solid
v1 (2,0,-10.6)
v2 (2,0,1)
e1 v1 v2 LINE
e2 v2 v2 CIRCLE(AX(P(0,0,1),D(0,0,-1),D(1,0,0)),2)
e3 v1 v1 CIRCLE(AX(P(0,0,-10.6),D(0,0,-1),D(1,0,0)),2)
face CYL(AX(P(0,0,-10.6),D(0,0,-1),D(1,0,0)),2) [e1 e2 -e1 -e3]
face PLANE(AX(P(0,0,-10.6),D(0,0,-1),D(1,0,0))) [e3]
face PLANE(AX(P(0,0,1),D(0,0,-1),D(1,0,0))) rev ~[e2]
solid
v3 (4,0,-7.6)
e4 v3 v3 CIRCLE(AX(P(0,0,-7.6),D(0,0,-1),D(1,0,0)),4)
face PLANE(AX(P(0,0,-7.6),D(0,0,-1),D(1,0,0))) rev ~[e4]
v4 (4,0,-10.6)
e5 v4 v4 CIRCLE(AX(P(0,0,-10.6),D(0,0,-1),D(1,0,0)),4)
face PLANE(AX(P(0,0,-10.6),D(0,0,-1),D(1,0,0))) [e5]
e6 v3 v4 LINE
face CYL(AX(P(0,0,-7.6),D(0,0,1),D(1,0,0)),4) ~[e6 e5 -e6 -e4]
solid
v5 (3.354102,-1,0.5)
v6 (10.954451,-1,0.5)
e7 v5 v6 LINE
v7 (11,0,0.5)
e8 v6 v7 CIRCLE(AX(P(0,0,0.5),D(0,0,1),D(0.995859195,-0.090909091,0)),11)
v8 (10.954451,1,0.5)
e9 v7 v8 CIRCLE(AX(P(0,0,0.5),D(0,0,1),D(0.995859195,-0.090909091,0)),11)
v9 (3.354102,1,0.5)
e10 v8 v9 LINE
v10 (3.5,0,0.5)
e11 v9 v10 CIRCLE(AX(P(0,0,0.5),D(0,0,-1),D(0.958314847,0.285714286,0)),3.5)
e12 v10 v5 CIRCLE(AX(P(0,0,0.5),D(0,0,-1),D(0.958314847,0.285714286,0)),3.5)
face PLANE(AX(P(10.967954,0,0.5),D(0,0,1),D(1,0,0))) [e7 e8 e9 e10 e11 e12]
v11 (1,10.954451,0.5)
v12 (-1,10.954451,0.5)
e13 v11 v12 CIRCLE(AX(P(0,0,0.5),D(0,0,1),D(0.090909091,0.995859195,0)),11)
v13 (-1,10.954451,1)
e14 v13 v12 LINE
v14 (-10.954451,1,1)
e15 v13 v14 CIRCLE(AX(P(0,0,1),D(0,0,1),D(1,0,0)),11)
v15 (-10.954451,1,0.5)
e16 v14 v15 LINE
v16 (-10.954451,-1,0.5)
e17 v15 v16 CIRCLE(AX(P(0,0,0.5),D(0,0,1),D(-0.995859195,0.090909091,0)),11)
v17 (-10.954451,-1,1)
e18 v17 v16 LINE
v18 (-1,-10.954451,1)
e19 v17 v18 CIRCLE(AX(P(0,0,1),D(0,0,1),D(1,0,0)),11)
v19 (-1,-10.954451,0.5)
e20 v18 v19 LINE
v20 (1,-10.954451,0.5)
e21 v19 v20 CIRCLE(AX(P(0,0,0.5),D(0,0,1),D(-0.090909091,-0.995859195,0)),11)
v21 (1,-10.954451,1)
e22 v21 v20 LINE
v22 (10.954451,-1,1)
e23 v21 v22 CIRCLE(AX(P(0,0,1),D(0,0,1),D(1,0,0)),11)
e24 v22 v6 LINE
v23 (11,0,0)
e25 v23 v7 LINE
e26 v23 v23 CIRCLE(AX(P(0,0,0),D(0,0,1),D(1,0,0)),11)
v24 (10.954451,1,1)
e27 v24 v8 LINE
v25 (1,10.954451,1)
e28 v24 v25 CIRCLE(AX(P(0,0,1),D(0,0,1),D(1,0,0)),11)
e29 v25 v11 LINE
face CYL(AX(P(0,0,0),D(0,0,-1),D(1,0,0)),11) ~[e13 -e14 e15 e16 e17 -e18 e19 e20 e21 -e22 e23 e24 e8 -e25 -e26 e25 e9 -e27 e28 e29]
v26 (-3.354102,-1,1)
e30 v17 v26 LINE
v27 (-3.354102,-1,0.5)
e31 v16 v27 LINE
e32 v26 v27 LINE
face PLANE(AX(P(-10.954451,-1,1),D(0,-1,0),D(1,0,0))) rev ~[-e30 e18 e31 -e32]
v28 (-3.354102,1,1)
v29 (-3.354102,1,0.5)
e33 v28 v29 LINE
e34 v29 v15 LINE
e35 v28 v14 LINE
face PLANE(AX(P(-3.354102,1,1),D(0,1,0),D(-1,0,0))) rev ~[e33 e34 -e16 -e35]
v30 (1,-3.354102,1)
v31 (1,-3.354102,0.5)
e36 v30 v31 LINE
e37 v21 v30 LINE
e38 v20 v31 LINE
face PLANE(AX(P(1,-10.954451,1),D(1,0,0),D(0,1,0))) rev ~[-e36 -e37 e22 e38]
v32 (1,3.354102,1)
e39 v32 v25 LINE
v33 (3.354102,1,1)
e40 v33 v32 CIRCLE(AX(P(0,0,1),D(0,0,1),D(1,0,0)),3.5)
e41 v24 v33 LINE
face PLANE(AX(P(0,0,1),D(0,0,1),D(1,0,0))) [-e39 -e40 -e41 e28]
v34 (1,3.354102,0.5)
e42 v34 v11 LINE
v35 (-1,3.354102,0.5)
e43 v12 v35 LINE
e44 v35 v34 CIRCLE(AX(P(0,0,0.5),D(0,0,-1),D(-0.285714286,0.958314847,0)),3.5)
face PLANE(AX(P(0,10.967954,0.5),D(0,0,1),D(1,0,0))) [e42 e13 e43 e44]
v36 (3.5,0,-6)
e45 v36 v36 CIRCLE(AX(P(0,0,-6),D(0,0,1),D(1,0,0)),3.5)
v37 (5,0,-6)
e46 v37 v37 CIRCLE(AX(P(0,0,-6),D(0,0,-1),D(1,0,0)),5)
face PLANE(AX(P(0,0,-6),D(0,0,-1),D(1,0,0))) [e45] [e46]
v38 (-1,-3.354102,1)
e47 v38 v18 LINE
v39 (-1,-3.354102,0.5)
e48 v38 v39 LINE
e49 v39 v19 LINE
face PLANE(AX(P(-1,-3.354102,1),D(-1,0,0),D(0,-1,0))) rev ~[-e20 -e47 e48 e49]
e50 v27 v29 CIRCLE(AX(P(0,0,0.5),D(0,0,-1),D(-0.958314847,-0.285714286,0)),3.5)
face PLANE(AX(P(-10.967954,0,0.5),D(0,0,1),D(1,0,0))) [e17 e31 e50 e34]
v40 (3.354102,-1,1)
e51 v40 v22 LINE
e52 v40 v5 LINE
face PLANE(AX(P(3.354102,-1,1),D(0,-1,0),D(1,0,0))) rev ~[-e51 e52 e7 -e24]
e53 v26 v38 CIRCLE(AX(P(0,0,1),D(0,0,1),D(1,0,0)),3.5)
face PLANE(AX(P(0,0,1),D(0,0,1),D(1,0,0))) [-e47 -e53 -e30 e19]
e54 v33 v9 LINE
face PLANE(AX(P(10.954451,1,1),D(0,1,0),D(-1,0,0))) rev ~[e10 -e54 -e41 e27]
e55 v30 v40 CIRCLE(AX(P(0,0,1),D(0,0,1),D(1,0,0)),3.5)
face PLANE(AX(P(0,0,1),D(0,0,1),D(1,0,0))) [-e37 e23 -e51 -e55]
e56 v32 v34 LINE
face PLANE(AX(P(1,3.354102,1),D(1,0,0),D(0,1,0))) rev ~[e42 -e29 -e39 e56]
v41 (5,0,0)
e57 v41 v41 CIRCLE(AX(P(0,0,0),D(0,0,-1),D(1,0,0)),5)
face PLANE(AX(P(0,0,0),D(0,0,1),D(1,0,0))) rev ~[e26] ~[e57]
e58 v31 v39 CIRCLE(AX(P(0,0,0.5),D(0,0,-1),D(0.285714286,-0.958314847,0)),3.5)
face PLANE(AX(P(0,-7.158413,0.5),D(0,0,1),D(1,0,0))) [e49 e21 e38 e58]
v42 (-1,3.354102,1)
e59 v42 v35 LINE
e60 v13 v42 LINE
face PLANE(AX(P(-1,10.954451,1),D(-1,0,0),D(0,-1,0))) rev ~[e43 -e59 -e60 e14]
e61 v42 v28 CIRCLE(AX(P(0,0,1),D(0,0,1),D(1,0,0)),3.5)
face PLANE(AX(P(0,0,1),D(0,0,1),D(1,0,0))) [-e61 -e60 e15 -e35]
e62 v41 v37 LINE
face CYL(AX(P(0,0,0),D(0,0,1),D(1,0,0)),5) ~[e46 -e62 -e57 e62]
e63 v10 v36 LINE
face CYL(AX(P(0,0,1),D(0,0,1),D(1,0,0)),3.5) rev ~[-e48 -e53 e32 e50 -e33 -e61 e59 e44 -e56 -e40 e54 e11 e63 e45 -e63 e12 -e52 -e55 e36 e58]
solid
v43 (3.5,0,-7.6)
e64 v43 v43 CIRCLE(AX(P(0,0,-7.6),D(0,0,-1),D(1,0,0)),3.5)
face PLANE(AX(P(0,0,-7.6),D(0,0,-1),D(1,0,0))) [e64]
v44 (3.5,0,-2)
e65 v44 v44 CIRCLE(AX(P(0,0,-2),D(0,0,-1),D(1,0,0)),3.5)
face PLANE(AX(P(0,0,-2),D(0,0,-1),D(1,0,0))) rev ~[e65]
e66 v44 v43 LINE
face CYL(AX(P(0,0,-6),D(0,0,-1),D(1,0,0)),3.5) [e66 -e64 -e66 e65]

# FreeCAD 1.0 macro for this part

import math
import FreeCAD as App
import Part
import Sketcher

V = App.Vector
Q = App.Units.Quantity

doc = App.newDocument("Part")
body = doc.addObject("PartDesign::Body", "Body")

sketch1 = body.newObject("Sketcher::SketchObject", "Sketch")
sketch1.AttachmentSupport = (doc.getObject("XY_Plane"), [""])
sketch1.MapMode = "FlatFace"
sketch1.addGeometry(Part.Circle(V(0, 0, 0), V(0, 0, 1), 11), False)
sketch1.addConstraint([
    Sketcher.Constraint("Coincident", 0, 3, -1, 1),
    Sketcher.Constraint("Diameter", 0, Q("22 mm")),
])
pad1 = body.newObject("PartDesign::Pad", "Pad")
pad1.Profile = sketch1
pad1.Length = 1

sketch2 = body.newObject("Sketcher::SketchObject", "Sketch001")
sketch2.AttachmentSupport = (doc.getObject("XY_Plane"), [""])
sketch2.MapMode = "FlatFace"
sketch2.addGeometry(Part.Circle(V(0, 0, 0), V(0, 0, 1), 5), False)
sketch2.addConstraint([
    Sketcher.Constraint("Coincident", 0, 3, -1, 1),
    Sketcher.Constraint("Diameter", 0, Q("10 mm")),
])
pad2 = body.newObject("PartDesign::Pad", "Pad001")
pad2.Profile = sketch2
pad2.Length = 6
pad2.Reversed = True

sketch3 = body.newObject("Sketcher::SketchObject", "Sketch002")
sketch3.AttachmentSupport = (doc.getObject("XY_Plane"), [""])
sketch3.MapMode = "FlatFace"
sketch3.AttachmentOffset = App.Placement(V(0, 0, 1), App.Rotation())
sketch3.addGeometry(Part.Circle(V(0, 0, 0), V(0, 0, 1), 3.5), False)
sketch3.addConstraint([
    Sketcher.Constraint("Coincident", 0, 3, -1, 1),
    Sketcher.Constraint("Diameter", 0, Q("7 mm")),
])
pocket1 = body.newObject("PartDesign::Pocket", "Pocket")
pocket1.Profile = sketch3
pocket1.Length = 11.6

sketch4 = body.newObject("Sketcher::SketchObject", "Sketch003")
sketch4.AttachmentSupport = (doc.getObject("XY_Plane"), [""])
sketch4.MapMode = "FlatFace"
sketch4.AttachmentOffset = App.Placement(V(0, 0, 1), App.Rotation())
sketch4.addGeometry([
    Part.ArcOfCircle(Part.Circle(V(0, 0, 0), V(0, 0, 1), 11), math.radians(174.78), math.radians(185.22)),
    Part.LineSegment(V(-11, -1, 0), V(-3.4, -1, 0)),
    Part.ArcOfCircle(Part.Circle(V(0, 0, 0), V(0, 0, 1), 3.5), math.radians(163), math.radians(197)),
    Part.LineSegment(V(-3.4, 1, 0), V(-11, 1, 0)),
    Part.ArcOfCircle(Part.Circle(V(0, 0, 0), V(0, 0, 1), 11), math.radians(-5.22), math.radians(5.22)),
    Part.LineSegment(V(11, 1, 0), V(3.4, 1, 0)),
    Part.ArcOfCircle(Part.Circle(V(0, 0, 0), V(0, 0, 1), 3.5), math.radians(-17), math.radians(17)),
    Part.LineSegment(V(3.4, -1, 0), V(11, -1, 0)),
    Part.ArcOfCircle(Part.Circle(V(0, 0, 0), V(0, 0, 1), 11), math.radians(84.78), math.radians(95.22)),
    Part.LineSegment(V(-1, 11, 0), V(-1, 3.4, 0)),
    Part.ArcOfCircle(Part.Circle(V(0, 0, 0), V(0, 0, 1), 3.5), math.radians(73), math.radians(107)),
    Part.LineSegment(V(1, 3.4, 0), V(1, 11, 0)),
    Part.LineSegment(V(-1, -3.4, 0), V(-1, -11, 0)),
    Part.ArcOfCircle(Part.Circle(V(0, 0, 0), V(0, 0, 1), 11), math.radians(-95.22), math.radians(-84.78)),
    Part.LineSegment(V(1, -11, 0), V(1, -3.4, 0)),
    Part.ArcOfCircle(Part.Circle(V(0, 0, 0), V(0, 0, 1), 3.5), math.radians(-107), math.radians(-73)),
], False)
sketch4.addConstraint([
    Sketcher.Constraint("Coincident", 0, 2, 1, 1),
    Sketcher.Constraint("Coincident", 1, 2, 2, 2),
    Sketcher.Constraint("Coincident", 2, 1, 3, 1),
    Sketcher.Constraint("Coincident", 3, 2, 0, 1),
    Sketcher.Constraint("Coincident", 4, 2, 5, 1),
    Sketcher.Constraint("Coincident", 5, 2, 6, 2),
    Sketcher.Constraint("Coincident", 6, 1, 7, 1),
    Sketcher.Constraint("Coincident", 7, 2, 4, 1),
    Sketcher.Constraint("Coincident", 8, 2, 9, 1),
    Sketcher.Constraint("Coincident", 9, 2, 10, 2),
    Sketcher.Constraint("Coincident", 10, 1, 11, 1),
    Sketcher.Constraint("Coincident", 11, 2, 8, 1),
    Sketcher.Constraint("Coincident", 12, 2, 13, 1),
    Sketcher.Constraint("Coincident", 13, 2, 14, 1),
    Sketcher.Constraint("Coincident", 14, 2, 15, 2),
    Sketcher.Constraint("Coincident", 15, 1, 12, 1),
    Sketcher.Constraint("Horizontal", 1),
    Sketcher.Constraint("Horizontal", 3),
    Sketcher.Constraint("Horizontal", 5),
    Sketcher.Constraint("Horizontal", 7),
    Sketcher.Constraint("Vertical", 9),
    Sketcher.Constraint("Vertical", 11),
    Sketcher.Constraint("Vertical", 12),
    Sketcher.Constraint("Vertical", 14),
    Sketcher.Constraint("Coincident", 0, 3, -1, 1),
    Sketcher.Constraint("Coincident", 2, 3, -1, 1),
    Sketcher.Constraint("Coincident", 4, 3, -1, 1),
    Sketcher.Constraint("Coincident", 6, 3, -1, 1),
    Sketcher.Constraint("Coincident", 8, 3, -1, 1),
    Sketcher.Constraint("Coincident", 10, 3, -1, 1),
    Sketcher.Constraint("Coincident", 13, 3, -1, 1),
    Sketcher.Constraint("Coincident", 15, 3, -1, 1),
    Sketcher.Constraint("Equal", 0, 4),
    Sketcher.Constraint("Equal", 2, 6),
    Sketcher.Constraint("Equal", 4, 8),
    Sketcher.Constraint("Equal", 6, 10),
    Sketcher.Constraint("Equal", 8, 13),
    Sketcher.Constraint("Equal", 10, 15),
    Sketcher.Constraint("Horizontal", 3, 2, 4, 2),
    Sketcher.Constraint("Horizontal", 1, 2, 6, 1),
    Sketcher.Constraint("Horizontal", 9, 2, 10, 1),
    Sketcher.Constraint("Horizontal", 12, 2, 13, 2),
    Sketcher.Constraint("Vertical", 1, 2, 2, 1),
    Sketcher.Constraint("Vertical", 9, 2, 12, 2),
    Sketcher.Constraint("Equal", 7, 9),
    Sketcher.Constraint("Radius", 0, Q("11 mm")),
    Sketcher.Constraint("Radius", 2, Q("3.5 mm")),
    Sketcher.Constraint("DistanceY", 0, 2, -1, 1, Q("1 mm")),
])
pocket2 = body.newObject("PartDesign::Pocket", "Pocket001")
pocket2.Profile = sketch4
pocket2.Length = 0.5
body2 = doc.addObject("PartDesign::Body", "Body001")

sketch5 = body2.newObject("Sketcher::SketchObject", "Sketch004")
sketch5.AttachmentSupport = (doc.getObject("XY_Plane001"), [""])
sketch5.MapMode = "FlatFace"
sketch5.AttachmentOffset = App.Placement(V(0, 0, -6), App.Rotation())
sketch5.addGeometry(Part.Circle(V(0, 0, 0), V(0, 0, 1), 3.5), False)
sketch5.addConstraint([
    Sketcher.Constraint("Coincident", 0, 3, -1, 1),
    Sketcher.Constraint("Diameter", 0, Q("7 mm")),
])
pad3 = body2.newObject("PartDesign::Pad", "Pad002")
pad3.Profile = sketch5
pad3.Type = "TwoLengths"
pad3.Length = 1.6
pad3.Length2 = 4
pad3.Reversed = True
body3 = doc.addObject("PartDesign::Body", "Body002")

sketch6 = body3.newObject("Sketcher::SketchObject", "Sketch005")
sketch6.AttachmentSupport = (doc.getObject("XY_Plane002"), [""])
sketch6.MapMode = "FlatFace"
sketch6.AttachmentOffset = App.Placement(V(0, 0, -7.6), App.Rotation())
sketch6.addGeometry(Part.Circle(V(0, 0, 0), V(0, 0, 1), 4), False)
sketch6.addConstraint([
    Sketcher.Constraint("Coincident", 0, 3, -1, 1),
    Sketcher.Constraint("Diameter", 0, Q("8 mm")),
])
pad4 = body3.newObject("PartDesign::Pad", "Pad003")
pad4.Profile = sketch6
pad4.Length = 3
pad4.Reversed = True
body4 = doc.addObject("PartDesign::Body", "Body003")

sketch7 = body4.newObject("Sketcher::SketchObject", "Sketch006")
sketch7.AttachmentSupport = (doc.getObject("XY_Plane003"), [""])
sketch7.MapMode = "FlatFace"
sketch7.AttachmentOffset = App.Placement(V(0, 0, -10.6), App.Rotation())
sketch7.addGeometry(Part.Circle(V(0, 0, 0), V(0, 0, 1), 2), False)
sketch7.addConstraint([
    Sketcher.Constraint("Coincident", 0, 3, -1, 1),
    Sketcher.Constraint("Diameter", 0, Q("4 mm")),
])
pad5 = body4.newObject("PartDesign::Pad", "Pad004")
pad5.Profile = sketch7
pad5.Length = 11.6

doc.recompute()
